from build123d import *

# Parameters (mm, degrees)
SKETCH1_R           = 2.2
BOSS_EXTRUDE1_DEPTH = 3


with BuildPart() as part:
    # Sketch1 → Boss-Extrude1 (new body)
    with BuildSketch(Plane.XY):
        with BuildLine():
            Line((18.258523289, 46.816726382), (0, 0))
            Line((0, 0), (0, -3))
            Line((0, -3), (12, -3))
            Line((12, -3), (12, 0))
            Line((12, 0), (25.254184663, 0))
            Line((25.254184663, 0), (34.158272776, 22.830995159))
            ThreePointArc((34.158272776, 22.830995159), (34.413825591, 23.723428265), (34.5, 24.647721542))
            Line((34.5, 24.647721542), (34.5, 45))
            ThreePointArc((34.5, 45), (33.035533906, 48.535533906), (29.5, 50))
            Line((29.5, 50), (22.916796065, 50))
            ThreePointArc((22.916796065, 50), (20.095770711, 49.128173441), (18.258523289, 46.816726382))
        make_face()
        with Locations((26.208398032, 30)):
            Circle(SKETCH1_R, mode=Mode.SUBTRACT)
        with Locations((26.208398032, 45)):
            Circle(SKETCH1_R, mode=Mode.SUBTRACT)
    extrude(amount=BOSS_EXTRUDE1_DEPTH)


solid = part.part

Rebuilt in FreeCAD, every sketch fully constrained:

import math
import FreeCAD as App
import Part
import Sketcher
Q = App.Units.Quantity

doc = App.newDocument("Part")
body = doc.addObject("PartDesign::Body", "Body")

# Sketch on XY plane
sketch1 = body.newObject("Sketcher::SketchObject", "Sketch")
sketch1.AttachmentSupport = (doc.getObject("XY_Plane"), [""])
sketch1.MapMode = "FlatFace"
sketch1.addGeometry([
    Part.LineSegment(App.Vector(18.3, 46.8, 0), App.Vector(0, 0, 0)),  # 0
    Part.LineSegment(App.Vector(0, 0, 0), App.Vector(0, -3, 0)),  # 1
    Part.LineSegment(App.Vector(0, -3, 0), App.Vector(12, -3, 0)),  # 2
    Part.LineSegment(App.Vector(12, -3, 0), App.Vector(12, 0, 0)),  # 3
    Part.LineSegment(App.Vector(12, 0, 0), App.Vector(25.3, 0, 0)),  # 4
    Part.LineSegment(App.Vector(25.3, 0, 0), App.Vector(34.2, 22.8, 0)),  # 5
    Part.ArcOfCircle(Part.Circle(App.Vector(29.5, 24.6, 0), App.Vector(0, 0, 1), 5), math.radians(-21), math.radians(0)),  # 6
    Part.LineSegment(App.Vector(34.5, 24.6, 0), App.Vector(34.5, 45, 0)),  # 7
    Part.ArcOfCircle(Part.Circle(App.Vector(29.5, 45, 0), App.Vector(0, 0, 1), 5), math.radians(0), math.radians(90)),  # 8
    Part.LineSegment(App.Vector(29.5, 50, 0), App.Vector(22.9, 50, 0)),  # 9
    Part.ArcOfCircle(Part.Circle(App.Vector(22.9, 45, 0), App.Vector(0, 0, 1), 5), math.radians(90), math.radians(159)),  # 10
    Part.Circle(App.Vector(26.2, 30, 0), App.Vector(0, 0, 1), 2.2),  # 11
    Part.Circle(App.Vector(26.2, 45, 0), App.Vector(0, 0, 1), 2.2),  # 12
], False)
sketch1.addConstraint([
    Sketcher.Constraint("Coincident", 0, 2, 1, 1),
    Sketcher.Constraint("Coincident", 1, 2, 2, 1),
    Sketcher.Constraint("Coincident", 2, 2, 3, 1),
    Sketcher.Constraint("Coincident", 3, 2, 4, 1),
    Sketcher.Constraint("Coincident", 4, 2, 5, 1),
    Sketcher.Constraint("Tangent", 5, 2, 6, 1),
    Sketcher.Constraint("Tangent", 6, 2, 7, 1),
    Sketcher.Constraint("Tangent", 7, 2, 8, 1),
    Sketcher.Constraint("Tangent", 8, 2, 9, 1),
    Sketcher.Constraint("Tangent", 9, 2, 10, 1),
    Sketcher.Constraint("Tangent", 10, 2, 0, 1),
    Sketcher.Constraint("Vertical", 1),
    Sketcher.Constraint("Horizontal", 2),
    Sketcher.Constraint("Vertical", 3),
    Sketcher.Constraint("Horizontal", 4),
    Sketcher.Constraint("Vertical", 7),
    Sketcher.Constraint("Horizontal", 9),
    Sketcher.Constraint("Coincident", 0, 2, -1, 1),
    Sketcher.Constraint("Equal", 6, 8),
    Sketcher.Constraint("Equal", 8, 10),
    Sketcher.Constraint("Equal", 11, 12),
    Sketcher.Constraint("PointOnObject", 3, 2, -1),
    Sketcher.Constraint("Parallel", 0, 5),
    Sketcher.Constraint("Horizontal", 10, 3, 12, 3),
    Sketcher.Constraint("Vertical", 11, 3, 12, 3),
    Sketcher.Constraint("Radius", 6, Q("5 mm")),
    Sketcher.Constraint("Diameter", 11, Q("4.4 mm")),
    Sketcher.Constraint("DistanceX", 2, 1, 2, 2, Q("12 mm")),
    Sketcher.Constraint("DistanceY", 1, 2, 1, 1, Q("3 mm")),
    Sketcher.Constraint("DistanceY", -1, 1, 8, 3, Q("45 mm")),
    Sketcher.Constraint("DistanceY", -1, 1, 11, 3, Q("30 mm")),
    Sketcher.Constraint("DistanceX", -1, 1, 6, 3, Q("29.5 mm")),
    Sketcher.Constraint("DistanceY", 7, 1, 7, 2, Q("20.352278 mm")),
    Sketcher.Constraint("DistanceX", -1, 1, 11, 3, Q("26.208398 mm")),
    Sketcher.Constraint("DistanceX", 10, 3, 11, 3, Q("3.291602 mm")),
])
pad1 = body.newObject("PartDesign::Pad", "Pad")
pad1.Profile = sketch1
pad1.Length = 3

doc.recompute()
